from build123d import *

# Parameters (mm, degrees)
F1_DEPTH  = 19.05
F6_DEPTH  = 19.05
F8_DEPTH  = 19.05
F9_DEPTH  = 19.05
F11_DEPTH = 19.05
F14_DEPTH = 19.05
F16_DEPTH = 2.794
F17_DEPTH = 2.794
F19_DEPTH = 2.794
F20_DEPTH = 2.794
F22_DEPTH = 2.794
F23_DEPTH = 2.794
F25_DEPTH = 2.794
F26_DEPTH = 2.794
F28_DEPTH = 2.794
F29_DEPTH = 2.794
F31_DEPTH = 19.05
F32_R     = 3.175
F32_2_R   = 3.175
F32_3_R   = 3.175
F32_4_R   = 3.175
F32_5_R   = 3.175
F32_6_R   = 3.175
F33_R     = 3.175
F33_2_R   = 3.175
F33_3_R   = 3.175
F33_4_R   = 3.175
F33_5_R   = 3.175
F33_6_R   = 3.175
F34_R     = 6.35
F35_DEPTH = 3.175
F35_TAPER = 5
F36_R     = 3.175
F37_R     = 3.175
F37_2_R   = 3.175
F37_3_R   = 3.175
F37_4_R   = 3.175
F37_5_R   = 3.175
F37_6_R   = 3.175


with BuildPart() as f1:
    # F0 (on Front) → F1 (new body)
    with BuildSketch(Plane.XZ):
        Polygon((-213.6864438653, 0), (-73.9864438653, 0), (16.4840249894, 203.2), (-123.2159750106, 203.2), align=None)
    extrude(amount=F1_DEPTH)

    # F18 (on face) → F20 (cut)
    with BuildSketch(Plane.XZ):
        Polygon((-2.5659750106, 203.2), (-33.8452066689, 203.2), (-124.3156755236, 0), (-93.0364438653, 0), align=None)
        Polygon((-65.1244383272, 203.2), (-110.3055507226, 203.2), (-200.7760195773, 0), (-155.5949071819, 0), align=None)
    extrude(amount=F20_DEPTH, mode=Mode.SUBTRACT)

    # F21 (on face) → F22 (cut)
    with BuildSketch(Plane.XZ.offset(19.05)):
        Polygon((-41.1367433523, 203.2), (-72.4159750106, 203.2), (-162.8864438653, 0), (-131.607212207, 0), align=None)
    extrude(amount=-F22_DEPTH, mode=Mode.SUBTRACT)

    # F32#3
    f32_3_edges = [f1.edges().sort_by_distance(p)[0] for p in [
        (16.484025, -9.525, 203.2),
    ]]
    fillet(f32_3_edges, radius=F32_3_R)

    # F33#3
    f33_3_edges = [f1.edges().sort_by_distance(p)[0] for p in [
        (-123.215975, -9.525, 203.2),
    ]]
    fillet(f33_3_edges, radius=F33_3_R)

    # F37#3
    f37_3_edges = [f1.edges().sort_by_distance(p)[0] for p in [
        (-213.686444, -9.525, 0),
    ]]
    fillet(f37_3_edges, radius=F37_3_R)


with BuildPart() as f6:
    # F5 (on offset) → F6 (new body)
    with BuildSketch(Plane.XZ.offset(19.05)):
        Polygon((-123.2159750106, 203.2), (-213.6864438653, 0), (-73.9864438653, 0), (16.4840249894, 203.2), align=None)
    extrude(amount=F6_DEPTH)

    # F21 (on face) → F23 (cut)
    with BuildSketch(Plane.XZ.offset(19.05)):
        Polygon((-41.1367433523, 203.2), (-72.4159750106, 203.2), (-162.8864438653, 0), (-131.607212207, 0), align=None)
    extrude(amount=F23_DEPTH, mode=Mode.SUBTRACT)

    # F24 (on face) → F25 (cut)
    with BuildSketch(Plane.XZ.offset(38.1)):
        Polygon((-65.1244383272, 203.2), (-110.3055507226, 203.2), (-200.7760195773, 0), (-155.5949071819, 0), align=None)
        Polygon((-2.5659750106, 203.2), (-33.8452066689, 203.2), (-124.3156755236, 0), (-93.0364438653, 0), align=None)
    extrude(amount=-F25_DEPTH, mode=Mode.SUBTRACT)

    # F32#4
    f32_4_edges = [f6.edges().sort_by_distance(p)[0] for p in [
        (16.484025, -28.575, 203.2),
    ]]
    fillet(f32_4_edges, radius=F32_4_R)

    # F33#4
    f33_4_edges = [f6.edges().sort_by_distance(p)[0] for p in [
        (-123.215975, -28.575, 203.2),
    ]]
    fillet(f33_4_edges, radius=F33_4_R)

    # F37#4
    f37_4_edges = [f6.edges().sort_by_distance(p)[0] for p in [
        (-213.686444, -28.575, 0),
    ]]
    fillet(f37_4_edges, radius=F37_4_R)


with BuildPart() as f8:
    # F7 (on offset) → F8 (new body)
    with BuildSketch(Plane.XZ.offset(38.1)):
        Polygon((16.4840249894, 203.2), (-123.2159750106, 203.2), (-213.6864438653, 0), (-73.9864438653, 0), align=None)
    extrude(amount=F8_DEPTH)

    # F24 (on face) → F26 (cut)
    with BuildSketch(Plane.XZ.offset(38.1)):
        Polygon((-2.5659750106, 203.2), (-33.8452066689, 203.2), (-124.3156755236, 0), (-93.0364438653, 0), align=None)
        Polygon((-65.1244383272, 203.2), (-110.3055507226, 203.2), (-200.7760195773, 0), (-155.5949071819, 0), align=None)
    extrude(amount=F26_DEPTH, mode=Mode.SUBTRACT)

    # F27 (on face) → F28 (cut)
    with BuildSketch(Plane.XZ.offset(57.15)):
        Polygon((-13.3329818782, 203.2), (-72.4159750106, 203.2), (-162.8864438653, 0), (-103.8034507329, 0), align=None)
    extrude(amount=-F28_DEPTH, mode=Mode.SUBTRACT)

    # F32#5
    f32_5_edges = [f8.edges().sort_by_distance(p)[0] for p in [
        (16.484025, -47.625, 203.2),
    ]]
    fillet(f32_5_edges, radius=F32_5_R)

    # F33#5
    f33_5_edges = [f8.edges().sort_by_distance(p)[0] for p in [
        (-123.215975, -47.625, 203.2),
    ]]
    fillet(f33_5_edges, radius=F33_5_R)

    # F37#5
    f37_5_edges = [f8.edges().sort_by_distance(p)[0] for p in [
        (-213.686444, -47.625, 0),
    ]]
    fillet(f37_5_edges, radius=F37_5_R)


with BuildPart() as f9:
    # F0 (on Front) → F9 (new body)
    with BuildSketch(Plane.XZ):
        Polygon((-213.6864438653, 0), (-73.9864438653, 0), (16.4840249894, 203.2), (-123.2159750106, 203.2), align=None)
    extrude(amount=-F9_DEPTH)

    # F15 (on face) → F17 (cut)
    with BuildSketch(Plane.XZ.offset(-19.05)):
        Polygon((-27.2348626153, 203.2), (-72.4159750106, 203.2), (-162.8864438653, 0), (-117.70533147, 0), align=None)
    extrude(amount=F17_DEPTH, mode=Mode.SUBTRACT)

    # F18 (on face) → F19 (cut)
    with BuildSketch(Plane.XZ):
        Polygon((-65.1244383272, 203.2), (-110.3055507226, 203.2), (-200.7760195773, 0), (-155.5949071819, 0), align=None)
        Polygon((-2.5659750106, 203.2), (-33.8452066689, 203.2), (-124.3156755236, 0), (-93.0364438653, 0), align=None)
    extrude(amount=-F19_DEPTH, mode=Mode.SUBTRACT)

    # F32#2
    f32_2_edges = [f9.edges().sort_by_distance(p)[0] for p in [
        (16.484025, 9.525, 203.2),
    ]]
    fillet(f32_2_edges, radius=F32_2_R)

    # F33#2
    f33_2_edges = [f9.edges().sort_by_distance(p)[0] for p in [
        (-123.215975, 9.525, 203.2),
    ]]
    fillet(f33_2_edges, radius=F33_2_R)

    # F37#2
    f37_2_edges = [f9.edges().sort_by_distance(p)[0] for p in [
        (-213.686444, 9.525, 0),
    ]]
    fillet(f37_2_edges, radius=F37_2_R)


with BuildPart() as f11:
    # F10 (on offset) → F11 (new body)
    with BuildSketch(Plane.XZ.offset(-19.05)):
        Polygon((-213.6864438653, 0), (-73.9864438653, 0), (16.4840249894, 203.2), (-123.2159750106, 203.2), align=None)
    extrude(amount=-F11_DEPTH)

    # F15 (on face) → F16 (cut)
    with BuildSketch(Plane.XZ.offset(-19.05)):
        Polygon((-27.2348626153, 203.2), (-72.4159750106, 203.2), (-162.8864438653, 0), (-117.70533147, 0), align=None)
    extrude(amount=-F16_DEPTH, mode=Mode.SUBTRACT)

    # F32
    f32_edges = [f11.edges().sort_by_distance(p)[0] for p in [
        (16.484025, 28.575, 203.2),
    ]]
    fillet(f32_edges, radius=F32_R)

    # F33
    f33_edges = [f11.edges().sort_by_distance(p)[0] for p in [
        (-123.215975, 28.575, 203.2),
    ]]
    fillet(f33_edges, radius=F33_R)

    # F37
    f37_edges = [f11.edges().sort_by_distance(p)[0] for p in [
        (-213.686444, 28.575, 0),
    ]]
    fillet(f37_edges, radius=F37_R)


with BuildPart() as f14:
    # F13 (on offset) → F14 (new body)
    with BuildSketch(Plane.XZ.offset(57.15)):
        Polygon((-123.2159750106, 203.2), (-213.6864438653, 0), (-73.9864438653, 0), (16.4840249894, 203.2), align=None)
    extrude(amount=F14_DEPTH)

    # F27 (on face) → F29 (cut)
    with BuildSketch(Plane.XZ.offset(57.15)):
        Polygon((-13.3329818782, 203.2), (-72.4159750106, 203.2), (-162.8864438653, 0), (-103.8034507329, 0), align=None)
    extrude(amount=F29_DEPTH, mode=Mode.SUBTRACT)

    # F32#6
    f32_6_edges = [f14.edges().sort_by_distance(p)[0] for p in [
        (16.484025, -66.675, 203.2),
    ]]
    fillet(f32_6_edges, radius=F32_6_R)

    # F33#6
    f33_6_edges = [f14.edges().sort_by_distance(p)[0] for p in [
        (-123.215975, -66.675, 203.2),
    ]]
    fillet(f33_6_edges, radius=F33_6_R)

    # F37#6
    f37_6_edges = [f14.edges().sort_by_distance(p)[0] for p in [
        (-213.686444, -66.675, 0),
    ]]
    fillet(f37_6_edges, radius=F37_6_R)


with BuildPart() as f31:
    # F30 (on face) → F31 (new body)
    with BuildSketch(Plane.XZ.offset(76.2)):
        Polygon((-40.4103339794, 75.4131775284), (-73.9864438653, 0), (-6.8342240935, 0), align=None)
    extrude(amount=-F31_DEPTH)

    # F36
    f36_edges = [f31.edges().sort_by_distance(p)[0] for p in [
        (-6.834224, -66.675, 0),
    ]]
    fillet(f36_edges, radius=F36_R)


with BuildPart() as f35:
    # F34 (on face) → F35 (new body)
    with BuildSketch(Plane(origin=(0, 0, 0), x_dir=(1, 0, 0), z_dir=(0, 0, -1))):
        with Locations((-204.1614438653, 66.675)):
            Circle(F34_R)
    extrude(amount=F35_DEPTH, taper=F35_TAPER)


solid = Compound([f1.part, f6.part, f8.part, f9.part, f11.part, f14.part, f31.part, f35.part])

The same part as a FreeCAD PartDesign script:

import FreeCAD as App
import Part
import Sketcher
Q = App.Units.Quantity


def edges_at(feature, points):
    """Names of the edges that pass closest to the given points."""
    edges = feature.Shape.Edges
    near = lambda p: min(range(len(edges)), key=lambda i: edges[i].distToShape(Part.Vertex(*p))[0])
    return sorted({f"Edge{near(p) + 1}" for p in points})

doc = App.newDocument("Part")
body = doc.addObject("PartDesign::Body", "Body")

sketch1 = body.newObject("Sketcher::SketchObject", "Sketch")
sketch1.AttachmentSupport = (doc.getObject("XZ_Plane"), [""])
sketch1.MapMode = "FlatFace"
sketch1.addGeometry(Part.LineSegment(App.Vector(-214, 0, 0), App.Vector(-74, 0, 0)), False)
sketch1.addGeometry(Part.LineSegment(App.Vector(-74, 0, 0), App.Vector(16, 203, 0)), False)
sketch1.addGeometry(Part.LineSegment(App.Vector(16, 203, 0), App.Vector(-123, 203, 0)), False)
sketch1.addGeometry(Part.LineSegment(App.Vector(-123, 203, 0), App.Vector(-214, 0, 0)), False)
sketch1.addConstraint(Sketcher.Constraint("Coincident", 0, 2, 1, 1))
sketch1.addConstraint(Sketcher.Constraint("Coincident", 1, 2, 2, 1))
sketch1.addConstraint(Sketcher.Constraint("Coincident", 2, 2, 3, 1))
sketch1.addConstraint(Sketcher.Constraint("Coincident", 3, 2, 0, 1))
sketch1.addConstraint(Sketcher.Constraint("Horizontal", 0))
sketch1.addConstraint(Sketcher.Constraint("Horizontal", 2))
sketch1.addConstraint(Sketcher.Constraint("PointOnObject", 0, 2, -1))
sketch1.addConstraint(Sketcher.Constraint("Parallel", 1, 3))
sketch1.addConstraint(Sketcher.Constraint("DistanceX", 0, 1, 0, 2, Q("5.5 in")))
sketch1.addConstraint(Sketcher.Constraint("DistanceY", -1, 1, 1, 2, Q("8 in")))
sketch1.addConstraint(Sketcher.Constraint("Angle", 1, Q("66 deg")))
sketch1.addConstraint(Sketcher.Constraint("DistanceX", 0, 2, -1, 1, Q("73.986444 mm")))
pad1 = body.newObject("PartDesign::Pad", "Pad")
pad1.Profile = sketch1
pad1.Length = Q("0.75 in")

sketch2 = body.newObject("Sketcher::SketchObject", "Sketch001")
sketch2.AttachmentSupport = (doc.getObject("XZ_Plane"), [""])
sketch2.MapMode = "FlatFace"
sketch2.addGeometry(Part.LineSegment(App.Vector(-3, 203, 0), App.Vector(-34, 203, 0)), False)
sketch2.addGeometry(Part.LineSegment(App.Vector(-34, 203, 0), App.Vector(-124, 0, 0)), False)
sketch2.addGeometry(Part.LineSegment(App.Vector(-124, 0, 0), App.Vector(-93, 0, 0)), False)
sketch2.addGeometry(Part.LineSegment(App.Vector(-93, 0, 0), App.Vector(-3, 203, 0)), False)
sketch2.addGeometry(Part.LineSegment(App.Vector(-65, 203, 0), App.Vector(-110, 203, 0)), False)
sketch2.addGeometry(Part.LineSegment(App.Vector(-110, 203, 0), App.Vector(-201, 0, 0)), False)
sketch2.addGeometry(Part.LineSegment(App.Vector(-201, 0, 0), App.Vector(-156, 0, 0)), False)
sketch2.addGeometry(Part.LineSegment(App.Vector(-156, 0, 0), App.Vector(-65, 203, 0)), False)
sketch2.addConstraint(Sketcher.Constraint("Coincident", 0, 2, 1, 1))
sketch2.addConstraint(Sketcher.Constraint("Coincident", 1, 2, 2, 1))
sketch2.addConstraint(Sketcher.Constraint("Coincident", 2, 2, 3, 1))
sketch2.addConstraint(Sketcher.Constraint("Coincident", 3, 2, 0, 1))
sketch2.addConstraint(Sketcher.Constraint("Coincident", 4, 2, 5, 1))
sketch2.addConstraint(Sketcher.Constraint("Coincident", 5, 2, 6, 1))
sketch2.addConstraint(Sketcher.Constraint("Coincident", 6, 2, 7, 1))
sketch2.addConstraint(Sketcher.Constraint("Coincident", 7, 2, 4, 1))
sketch2.addConstraint(Sketcher.Constraint("Horizontal", 0))
sketch2.addConstraint(Sketcher.Constraint("Horizontal", 2))
sketch2.addConstraint(Sketcher.Constraint("Horizontal", 4))
sketch2.addConstraint(Sketcher.Constraint("Horizontal", 6))
sketch2.addConstraint(Sketcher.Constraint("PointOnObject", 1, 2, -1))
sketch2.addConstraint(Sketcher.Constraint("PointOnObject", 5, 2, -1))
sketch2.addConstraint(Sketcher.Constraint("Parallel", 1, 3))
sketch2.addConstraint(Sketcher.Constraint("Parallel", 3, 5))
sketch2.addConstraint(Sketcher.Constraint("Parallel", 5, 7))
sketch2.addConstraint(Sketcher.Constraint("Horizontal", 3, 2, 4, 2))
sketch2.addConstraint(Sketcher.Constraint("DistanceY", -1, 1, 0, 2, Q("8 in")))
sketch2.addConstraint(Sketcher.Constraint("Angle", 1, Q("-114 deg")))
sketch2.addConstraint(Sketcher.Constraint("DistanceX", 0, 2, 0, 1, Q("31.279232 mm")))
sketch2.addConstraint(Sketcher.Constraint("DistanceX", 6, 2, 0, 2, Q("121.749701 mm")))
sketch2.addConstraint(Sketcher.Constraint("DistanceX", 4, 2, 4, 1, Q("45.181112 mm")))
sketch2.addConstraint(Sketcher.Constraint("DistanceX", 4, 2, -1, 1, Q("110.305551 mm")))
pocket1 = body.newObject("PartDesign::Pocket", "Pocket")
pocket1.Profile = sketch2
pocket1.Length = Q("0.11 in")
pocket1.Reversed = True

sketch3 = body.newObject("Sketcher::SketchObject", "Sketch002")
sketch3.AttachmentSupport = (doc.getObject("XZ_Plane"), [""])
sketch3.MapMode = "FlatFace"
sketch3.AttachmentOffset = App.Placement(App.Vector(0, 0, 0.75 * 25.4), App.Rotation())
sketch3.addGeometry(Part.LineSegment(App.Vector(-41, 203, 0), App.Vector(-72, 203, 0)), False)
sketch3.addGeometry(Part.LineSegment(App.Vector(-72, 203, 0), App.Vector(-163, 0, 0)), False)
sketch3.addGeometry(Part.LineSegment(App.Vector(-163, 0, 0), App.Vector(-132, 0, 0)), False)
sketch3.addGeometry(Part.LineSegment(App.Vector(-132, 0, 0), App.Vector(-41, 203, 0)), False)
sketch3.addConstraint(Sketcher.Constraint("Coincident", 0, 2, 1, 1))
sketch3.addConstraint(Sketcher.Constraint("Coincident", 1, 2, 2, 1))
sketch3.addConstraint(Sketcher.Constraint("Coincident", 2, 2, 3, 1))
sketch3.addConstraint(Sketcher.Constraint("Coincident", 3, 2, 0, 1))
sketch3.addConstraint(Sketcher.Constraint("Horizontal", 0))
sketch3.addConstraint(Sketcher.Constraint("Horizontal", 2))
sketch3.addConstraint(Sketcher.Constraint("PointOnObject", 1, 2, -1))
sketch3.addConstraint(Sketcher.Constraint("Parallel", 1, 3))
sketch3.addConstraint(Sketcher.Constraint("DistanceY", -1, 1, 0, 2, Q("8 in")))
sketch3.addConstraint(Sketcher.Constraint("Angle", 1, Q("-114 deg")))
sketch3.addConstraint(Sketcher.Constraint("DistanceX", 0, 2, 0, 1, Q("31.279232 mm")))
sketch3.addConstraint(Sketcher.Constraint("DistanceX", 0, 2, -1, 1, Q("72.415975 mm")))
pocket2 = body.newObject("PartDesign::Pocket", "Pocket001")
pocket2.Profile = sketch3
pocket2.Length = Q("0.11 in")
doc.recompute()

fillet = body.newObject("PartDesign::Fillet", "Fillet")
fillet.Base = (pocket2, edges_at(pocket2, [(16.484, -9.525, 203.2)]))
fillet.Radius = Q("0.125 in")
doc.recompute()

fillet2 = body.newObject("PartDesign::Fillet", "Fillet001")
fillet2.Base = (fillet, edges_at(fillet, [(-123.216, -9.525, 203.2)]))
fillet2.Radius = Q("0.125 in")
doc.recompute()

fillet3 = body.newObject("PartDesign::Fillet", "Fillet002")
fillet3.Base = (fillet2, edges_at(fillet2, [(-213.686, -9.525, 0)]))
fillet3.Radius = Q("0.125 in")
body2 = doc.addObject("PartDesign::Body", "Body001")

sketch4 = body2.newObject("Sketcher::SketchObject", "Sketch003")
sketch4.AttachmentSupport = (doc.getObject("XZ_Plane001"), [""])
sketch4.MapMode = "FlatFace"
sketch4.AttachmentOffset = App.Placement(App.Vector(0, 0, 0.75 * 25.4), App.Rotation())
sketch4.addGeometry(Part.LineSegment(App.Vector(-123, 203, 0), App.Vector(-214, 0, 0)), False)
sketch4.addGeometry(Part.LineSegment(App.Vector(-214, 0, 0), App.Vector(-74, 0, 0)), False)
sketch4.addGeometry(Part.LineSegment(App.Vector(-74, 0, 0), App.Vector(16, 203, 0)), False)
sketch4.addGeometry(Part.LineSegment(App.Vector(16, 203, 0), App.Vector(-123, 203, 0)), False)
sketch4.addConstraint(Sketcher.Constraint("Coincident", 0, 2, 1, 1))
sketch4.addConstraint(Sketcher.Constraint("Coincident", 1, 2, 2, 1))
sketch4.addConstraint(Sketcher.Constraint("Coincident", 2, 2, 3, 1))
sketch4.addConstraint(Sketcher.Constraint("Coincident", 3, 2, 0, 1))
sketch4.addConstraint(Sketcher.Constraint("Horizontal", 1))
sketch4.addConstraint(Sketcher.Constraint("Horizontal", 3))
sketch4.addConstraint(Sketcher.Constraint("PointOnObject", 0, 2, -1))
sketch4.addConstraint(Sketcher.Constraint("Parallel", 0, 2))
sketch4.addConstraint(Sketcher.Constraint("DistanceX", 1, 1, 1, 2, Q("5.5 in")))
sketch4.addConstraint(Sketcher.Constraint("DistanceY", -1, 1, 2, 2, Q("8 in")))
sketch4.addConstraint(Sketcher.Constraint("Angle", 0, Q("-114 deg")))
sketch4.addConstraint(Sketcher.Constraint("DistanceX", 0, 2, -1, 1, Q("213.686444 mm")))
pad2 = body2.newObject("PartDesign::Pad", "Pad001")
pad2.Profile = sketch4
pad2.Length = Q("0.75 in")

sketch5 = body2.newObject("Sketcher::SketchObject", "Sketch004")
sketch5.AttachmentSupport = (doc.getObject("XZ_Plane001"), [""])
sketch5.MapMode = "FlatFace"
sketch5.AttachmentOffset = App.Placement(App.Vector(0, 0, 0.75 * 25.4), App.Rotation())
sketch5.addGeometry(Part.LineSegment(App.Vector(-41, 203, 0), App.Vector(-72, 203, 0)), False)
sketch5.addGeometry(Part.LineSegment(App.Vector(-72, 203, 0), App.Vector(-163, 0, 0)), False)
sketch5.addGeometry(Part.LineSegment(App.Vector(-163, 0, 0), App.Vector(-132, 0, 0)), False)
sketch5.addGeometry(Part.LineSegment(App.Vector(-132, 0, 0), App.Vector(-41, 203, 0)), False)
sketch5.addConstraint(Sketcher.Constraint("Coincident", 0, 2, 1, 1))
sketch5.addConstraint(Sketcher.Constraint("Coincident", 1, 2, 2, 1))
sketch5.addConstraint(Sketcher.Constraint("Coincident", 2, 2, 3, 1))
sketch5.addConstraint(Sketcher.Constraint("Coincident", 3, 2, 0, 1))
sketch5.addConstraint(Sketcher.Constraint("Horizontal", 0))
sketch5.addConstraint(Sketcher.Constraint("Horizontal", 2))
sketch5.addConstraint(Sketcher.Constraint("PointOnObject", 1, 2, -1))
sketch5.addConstraint(Sketcher.Constraint("Parallel", 1, 3))
sketch5.addConstraint(Sketcher.Constraint("DistanceY", -1, 1, 0, 2, Q("8 in")))
sketch5.addConstraint(Sketcher.Constraint("Angle", 1, Q("-114 deg")))
sketch5.addConstraint(Sketcher.Constraint("DistanceX", 0, 2, 0, 1, Q("31.279232 mm")))
sketch5.addConstraint(Sketcher.Constraint("DistanceX", 0, 2, -1, 1, Q("72.415975 mm")))
pocket3 = body2.newObject("PartDesign::Pocket", "Pocket002")
pocket3.Profile = sketch5
pocket3.Length = Q("0.11 in")
pocket3.Reversed = True

sketch6 = body2.newObject("Sketcher::SketchObject", "Sketch005")
sketch6.AttachmentSupport = (doc.getObject("XZ_Plane001"), [""])
sketch6.MapMode = "FlatFace"
sketch6.AttachmentOffset = App.Placement(App.Vector(0, 0, 1.5 * 25.4), App.Rotation())
sketch6.addGeometry(Part.LineSegment(App.Vector(-65, 203, 0), App.Vector(-110, 203, 0)), False)
sketch6.addGeometry(Part.LineSegment(App.Vector(-110, 203, 0), App.Vector(-201, 0, 0)), False)
sketch6.addGeometry(Part.LineSegment(App.Vector(-201, 0, 0), App.Vector(-156, 0, 0)), False)
sketch6.addGeometry(Part.LineSegment(App.Vector(-156, 0, 0), App.Vector(-65, 203, 0)), False)
sketch6.addGeometry(Part.LineSegment(App.Vector(-3, 203, 0), App.Vector(-34, 203, 0)), False)
sketch6.addGeometry(Part.LineSegment(App.Vector(-34, 203, 0), App.Vector(-124, 0, 0)), False)
sketch6.addGeometry(Part.LineSegment(App.Vector(-124, 0, 0), App.Vector(-93, 0, 0)), False)
sketch6.addGeometry(Part.LineSegment(App.Vector(-93, 0, 0), App.Vector(-3, 203, 0)), False)
sketch6.addConstraint(Sketcher.Constraint("Coincident", 0, 2, 1, 1))
sketch6.addConstraint(Sketcher.Constraint("Coincident", 1, 2, 2, 1))
sketch6.addConstraint(Sketcher.Constraint("Coincident", 2, 2, 3, 1))
sketch6.addConstraint(Sketcher.Constraint("Coincident", 3, 2, 0, 1))
sketch6.addConstraint(Sketcher.Constraint("Coincident", 4, 2, 5, 1))
sketch6.addConstraint(Sketcher.Constraint("Coincident", 5, 2, 6, 1))
sketch6.addConstraint(Sketcher.Constraint("Coincident", 6, 2, 7, 1))
sketch6.addConstraint(Sketcher.Constraint("Coincident", 7, 2, 4, 1))
sketch6.addConstraint(Sketcher.Constraint("Horizontal", 0))
sketch6.addConstraint(Sketcher.Constraint("Horizontal", 2))
sketch6.addConstraint(Sketcher.Constraint("Horizontal", 4))
sketch6.addConstraint(Sketcher.Constraint("Horizontal", 6))
sketch6.addConstraint(Sketcher.Constraint("PointOnObject", 1, 2, -1))
sketch6.addConstraint(Sketcher.Constraint("PointOnObject", 5, 2, -1))
sketch6.addConstraint(Sketcher.Constraint("Parallel", 1, 3))
sketch6.addConstraint(Sketcher.Constraint("Parallel", 3, 5))
sketch6.addConstraint(Sketcher.Constraint("Parallel", 5, 7))
sketch6.addConstraint(Sketcher.Constraint("Horizontal", 3, 2, 4, 2))
sketch6.addConstraint(Sketcher.Constraint("DistanceY", -1, 1, 0, 2, Q("8 in")))
sketch6.addConstraint(Sketcher.Constraint("Angle", 1, Q("-114 deg")))
sketch6.addConstraint(Sketcher.Constraint("DistanceX", 4, 2, 4, 1, Q("31.279232 mm")))
sketch6.addConstraint(Sketcher.Constraint("DistanceX", 2, 2, 4, 2, Q("121.749701 mm")))
sketch6.addConstraint(Sketcher.Constraint("DistanceX", 0, 2, 0, 1, Q("45.181112 mm")))
sketch6.addConstraint(Sketcher.Constraint("DistanceX", 0, 2, -1, 1, Q("110.305551 mm")))
pocket4 = body2.newObject("PartDesign::Pocket", "Pocket003")
pocket4.Profile = sketch6
pocket4.Length = Q("0.11 in")
doc.recompute()

fillet4 = body2.newObject("PartDesign::Fillet", "Fillet003")
fillet4.Base = (pocket4, edges_at(pocket4, [(16.484, -28.575, 203.2)]))
fillet4.Radius = Q("0.125 in")
doc.recompute()

fillet5 = body2.newObject("PartDesign::Fillet", "Fillet004")
fillet5.Base = (fillet4, edges_at(fillet4, [(-123.216, -28.575, 203.2)]))
fillet5.Radius = Q("0.125 in")
doc.recompute()

fillet6 = body2.newObject("PartDesign::Fillet", "Fillet005")
fillet6.Base = (fillet5, edges_at(fillet5, [(-213.686, -28.575, 0)]))
fillet6.Radius = Q("0.125 in")
body3 = doc.addObject("PartDesign::Body", "Body002")

sketch7 = body3.newObject("Sketcher::SketchObject", "Sketch006")
sketch7.AttachmentSupport = (doc.getObject("XZ_Plane002"), [""])
sketch7.MapMode = "FlatFace"
sketch7.AttachmentOffset = App.Placement(App.Vector(0, 0, 1.5 * 25.4), App.Rotation())
sketch7.addGeometry(Part.LineSegment(App.Vector(16, 203, 0), App.Vector(-123, 203, 0)), False)
sketch7.addGeometry(Part.LineSegment(App.Vector(-123, 203, 0), App.Vector(-214, 0, 0)), False)
sketch7.addGeometry(Part.LineSegment(App.Vector(-214, 0, 0), App.Vector(-74, 0, 0)), False)
sketch7.addGeometry(Part.LineSegment(App.Vector(-74, 0, 0), App.Vector(16, 203, 0)), False)
sketch7.addConstraint(Sketcher.Constraint("Coincident", 0, 2, 1, 1))
sketch7.addConstraint(Sketcher.Constraint("Coincident", 1, 2, 2, 1))
sketch7.addConstraint(Sketcher.Constraint("Coincident", 2, 2, 3, 1))
sketch7.addConstraint(Sketcher.Constraint("Coincident", 3, 2, 0, 1))
sketch7.addConstraint(Sketcher.Constraint("Horizontal", 0))
sketch7.addConstraint(Sketcher.Constraint("Horizontal", 2))
sketch7.addConstraint(Sketcher.Constraint("PointOnObject", 1, 2, -1))
sketch7.addConstraint(Sketcher.Constraint("Parallel", 1, 3))
sketch7.addConstraint(Sketcher.Constraint("DistanceX", 0, 2, 0, 1, Q("5.5 in")))
sketch7.addConstraint(Sketcher.Constraint("DistanceY", -1, 1, 0, 2, Q("8 in")))
sketch7.addConstraint(Sketcher.Constraint("Angle", 1, Q("-114 deg")))
sketch7.addConstraint(Sketcher.Constraint("DistanceX", 0, 2, -1, 1, Q("123.215975 mm")))
pad3 = body3.newObject("PartDesign::Pad", "Pad002")
pad3.Profile = sketch7
pad3.Length = Q("0.75 in")

sketch8 = body3.newObject("Sketcher::SketchObject", "Sketch007")
sketch8.AttachmentSupport = (doc.getObject("XZ_Plane002"), [""])
sketch8.MapMode = "FlatFace"
sketch8.AttachmentOffset = App.Placement(App.Vector(0, 0, 1.5 * 25.4), App.Rotation())
sketch8.addGeometry(Part.LineSegment(App.Vector(-3, 203, 0), App.Vector(-34, 203, 0)), False)
sketch8.addGeometry(Part.LineSegment(App.Vector(-34, 203, 0), App.Vector(-124, 0, 0)), False)
sketch8.addGeometry(Part.LineSegment(App.Vector(-124, 0, 0), App.Vector(-93, 0, 0)), False)
sketch8.addGeometry(Part.LineSegment(App.Vector(-93, 0, 0), App.Vector(-3, 203, 0)), False)
sketch8.addGeometry(Part.LineSegment(App.Vector(-65, 203, 0), App.Vector(-110, 203, 0)), False)
sketch8.addGeometry(Part.LineSegment(App.Vector(-110, 203, 0), App.Vector(-201, 0, 0)), False)
sketch8.addGeometry(Part.LineSegment(App.Vector(-201, 0, 0), App.Vector(-156, 0, 0)), False)
sketch8.addGeometry(Part.LineSegment(App.Vector(-156, 0, 0), App.Vector(-65, 203, 0)), False)
sketch8.addConstraint(Sketcher.Constraint("Coincident", 0, 2, 1, 1))
sketch8.addConstraint(Sketcher.Constraint("Coincident", 1, 2, 2, 1))
sketch8.addConstraint(Sketcher.Constraint("Coincident", 2, 2, 3, 1))
sketch8.addConstraint(Sketcher.Constraint("Coincident", 3, 2, 0, 1))
sketch8.addConstraint(Sketcher.Constraint("Coincident", 4, 2, 5, 1))
sketch8.addConstraint(Sketcher.Constraint("Coincident", 5, 2, 6, 1))
sketch8.addConstraint(Sketcher.Constraint("Coincident", 6, 2, 7, 1))
sketch8.addConstraint(Sketcher.Constraint("Coincident", 7, 2, 4, 1))
sketch8.addConstraint(Sketcher.Constraint("Horizontal", 0))
sketch8.addConstraint(Sketcher.Constraint("Horizontal", 2))
sketch8.addConstraint(Sketcher.Constraint("Horizontal", 4))
sketch8.addConstraint(Sketcher.Constraint("Horizontal", 6))
sketch8.addConstraint(Sketcher.Constraint("PointOnObject", 1, 2, -1))
sketch8.addConstraint(Sketcher.Constraint("PointOnObject", 5, 2, -1))
sketch8.addConstraint(Sketcher.Constraint("Parallel", 1, 3))
sketch8.addConstraint(Sketcher.Constraint("Parallel", 3, 5))
sketch8.addConstraint(Sketcher.Constraint("Parallel", 5, 7))
sketch8.addConstraint(Sketcher.Constraint("Horizontal", 3, 2, 4, 2))
sketch8.addConstraint(Sketcher.Constraint("DistanceY", -1, 1, 0, 2, Q("8 in")))
sketch8.addConstraint(Sketcher.Constraint("Angle", 1, Q("-114 deg")))
sketch8.addConstraint(Sketcher.Constraint("DistanceX", 0, 2, 0, 1, Q("31.279232 mm")))
sketch8.addConstraint(Sketcher.Constraint("DistanceX", 6, 2, 0, 2, Q("121.749701 mm")))
sketch8.addConstraint(Sketcher.Constraint("DistanceX", 4, 2, 4, 1, Q("45.181112 mm")))
sketch8.addConstraint(Sketcher.Constraint("DistanceX", 4, 2, -1, 1, Q("110.305551 mm")))
pocket5 = body3.newObject("PartDesign::Pocket", "Pocket004")
pocket5.Profile = sketch8
pocket5.Length = Q("0.11 in")
pocket5.Reversed = True

sketch9 = body3.newObject("Sketcher::SketchObject", "Sketch008")
sketch9.AttachmentSupport = (doc.getObject("XZ_Plane002"), [""])
sketch9.MapMode = "FlatFace"
sketch9.AttachmentOffset = App.Placement(App.Vector(0, 0, 2.25 * 25.4), App.Rotation())
sketch9.addGeometry(Part.LineSegment(App.Vector(-13, 203, 0), App.Vector(-72, 203, 0)), False)
sketch9.addGeometry(Part.LineSegment(App.Vector(-72, 203, 0), App.Vector(-163, 0, 0)), False)
sketch9.addGeometry(Part.LineSegment(App.Vector(-163, 0, 0), App.Vector(-104, 0, 0)), False)
sketch9.addGeometry(Part.LineSegment(App.Vector(-104, 0, 0), App.Vector(-13, 203, 0)), False)
sketch9.addConstraint(Sketcher.Constraint("Coincident", 0, 2, 1, 1))
sketch9.addConstraint(Sketcher.Constraint("Coincident", 1, 2, 2, 1))
sketch9.addConstraint(Sketcher.Constraint("Coincident", 2, 2, 3, 1))
sketch9.addConstraint(Sketcher.Constraint("Coincident", 3, 2, 0, 1))
sketch9.addConstraint(Sketcher.Constraint("Horizontal", 0))
sketch9.addConstraint(Sketcher.Constraint("Horizontal", 2))
sketch9.addConstraint(Sketcher.Constraint("PointOnObject", 1, 2, -1))
sketch9.addConstraint(Sketcher.Constraint("Parallel", 1, 3))
sketch9.addConstraint(Sketcher.Constraint("DistanceY", -1, 1, 0, 2, Q("8 in")))
sketch9.addConstraint(Sketcher.Constraint("Angle", 1, Q("-114 deg")))
sketch9.addConstraint(Sketcher.Constraint("DistanceX", 0, 2, 0, 1, Q("59.082993 mm")))
sketch9.addConstraint(Sketcher.Constraint("DistanceX", 2, 2, -1, 1, Q("103.803451 mm")))
pocket6 = body3.newObject("PartDesign::Pocket", "Pocket005")
pocket6.Profile = sketch9
pocket6.Length = Q("0.11 in")
doc.recompute()

fillet7 = body3.newObject("PartDesign::Fillet", "Fillet006")
fillet7.Base = (pocket6, edges_at(pocket6, [(16.484, -47.625, 203.2)]))
fillet7.Radius = Q("0.125 in")
doc.recompute()

fillet8 = body3.newObject("PartDesign::Fillet", "Fillet007")
fillet8.Base = (fillet7, edges_at(fillet7, [(-123.216, -47.625, 203.2)]))
fillet8.Radius = Q("0.125 in")
doc.recompute()

fillet9 = body3.newObject("PartDesign::Fillet", "Fillet008")
fillet9.Base = (fillet8, edges_at(fillet8, [(-213.686, -47.625, 0)]))
fillet9.Radius = Q("0.125 in")
body4 = doc.addObject("PartDesign::Body", "Body003")

sketch10 = body4.newObject("Sketcher::SketchObject", "Sketch009")
sketch10.AttachmentSupport = (doc.getObject("XZ_Plane003"), [""])
sketch10.MapMode = "FlatFace"
sketch10.addGeometry(Part.LineSegment(App.Vector(-214, 0, 0), App.Vector(-74, 0, 0)), False)
sketch10.addGeometry(Part.LineSegment(App.Vector(-74, 0, 0), App.Vector(16, 203, 0)), False)
sketch10.addGeometry(Part.LineSegment(App.Vector(16, 203, 0), App.Vector(-123, 203, 0)), False)
sketch10.addGeometry(Part.LineSegment(App.Vector(-123, 203, 0), App.Vector(-214, 0, 0)), False)
sketch10.addConstraint(Sketcher.Constraint("Coincident", 0, 2, 1, 1))
sketch10.addConstraint(Sketcher.Constraint("Coincident", 1, 2, 2, 1))
sketch10.addConstraint(Sketcher.Constraint("Coincident", 2, 2, 3, 1))
sketch10.addConstraint(Sketcher.Constraint("Coincident", 3, 2, 0, 1))
sketch10.addConstraint(Sketcher.Constraint("Horizontal", 0))
sketch10.addConstraint(Sketcher.Constraint("Horizontal", 2))
sketch10.addConstraint(Sketcher.Constraint("PointOnObject", 0, 2, -1))
sketch10.addConstraint(Sketcher.Constraint("Parallel", 1, 3))
sketch10.addConstraint(Sketcher.Constraint("DistanceX", 0, 1, 0, 2, Q("5.5 in")))
sketch10.addConstraint(Sketcher.Constraint("DistanceY", -1, 1, 1, 2, Q("8 in")))
sketch10.addConstraint(Sketcher.Constraint("Angle", 1, Q("66 deg")))
sketch10.addConstraint(Sketcher.Constraint("DistanceX", 0, 2, -1, 1, Q("73.986444 mm")))
pad4 = body4.newObject("PartDesign::Pad", "Pad003")
pad4.Profile = sketch10
pad4.Length = Q("0.75 in")
pad4.Reversed = True

sketch11 = body4.newObject("Sketcher::SketchObject", "Sketch010")
sketch11.AttachmentSupport = (doc.getObject("XZ_Plane003"), [""])
sketch11.MapMode = "FlatFace"
sketch11.AttachmentOffset = App.Placement(App.Vector(0, 0, -0.75 * 25.4), App.Rotation())
sketch11.addGeometry(Part.LineSegment(App.Vector(-27, 203, 0), App.Vector(-72, 203, 0)), False)
sketch11.addGeometry(Part.LineSegment(App.Vector(-72, 203, 0), App.Vector(-163, 0, 0)), False)
sketch11.addGeometry(Part.LineSegment(App.Vector(-163, 0, 0), App.Vector(-118, 0, 0)), False)
sketch11.addGeometry(Part.LineSegment(App.Vector(-118, 0, 0), App.Vector(-27, 203, 0)), False)
sketch11.addConstraint(Sketcher.Constraint("Coincident", 0, 2, 1, 1))
sketch11.addConstraint(Sketcher.Constraint("Coincident", 1, 2, 2, 1))
sketch11.addConstraint(Sketcher.Constraint("Coincident", 2, 2, 3, 1))
sketch11.addConstraint(Sketcher.Constraint("Coincident", 3, 2, 0, 1))
sketch11.addConstraint(Sketcher.Constraint("Horizontal", 0))
sketch11.addConstraint(Sketcher.Constraint("Horizontal", 2))
sketch11.addConstraint(Sketcher.Constraint("PointOnObject", 1, 2, -1))
sketch11.addConstraint(Sketcher.Constraint("Parallel", 1, 3))
sketch11.addConstraint(Sketcher.Constraint("DistanceY", -1, 1, 0, 2, Q("8 in")))
sketch11.addConstraint(Sketcher.Constraint("Angle", 1, Q("-114 deg")))
sketch11.addConstraint(Sketcher.Constraint("DistanceX", 0, 2, 0, 1, Q("45.181112 mm")))
sketch11.addConstraint(Sketcher.Constraint("DistanceX", 2, 2, -1, 1, Q("117.705331 mm")))
pocket7 = body4.newObject("PartDesign::Pocket", "Pocket006")
pocket7.Profile = sketch11
pocket7.Length = Q("0.11 in")
pocket7.Reversed = True

sketch12 = body4.newObject("Sketcher::SketchObject", "Sketch011")
sketch12.AttachmentSupport = (doc.getObject("XZ_Plane003"), [""])
sketch12.MapMode = "FlatFace"
sketch12.addGeometry(Part.LineSegment(App.Vector(-65, 203, 0), App.Vector(-110, 203, 0)), False)
sketch12.addGeometry(Part.LineSegment(App.Vector(-110, 203, 0), App.Vector(-201, 0, 0)), False)
sketch12.addGeometry(Part.LineSegment(App.Vector(-201, 0, 0), App.Vector(-156, 0, 0)), False)
sketch12.addGeometry(Part.LineSegment(App.Vector(-156, 0, 0), App.Vector(-65, 203, 0)), False)
sketch12.addGeometry(Part.LineSegment(App.Vector(-3, 203, 0), App.Vector(-34, 203, 0)), False)
sketch12.addGeometry(Part.LineSegment(App.Vector(-34, 203, 0), App.Vector(-124, 0, 0)), False)
sketch12.addGeometry(Part.LineSegment(App.Vector(-124, 0, 0), App.Vector(-93, 0, 0)), False)
sketch12.addGeometry(Part.LineSegment(App.Vector(-93, 0, 0), App.Vector(-3, 203, 0)), False)
sketch12.addConstraint(Sketcher.Constraint("Coincident", 0, 2, 1, 1))
sketch12.addConstraint(Sketcher.Constraint("Coincident", 1, 2, 2, 1))
sketch12.addConstraint(Sketcher.Constraint("Coincident", 2, 2, 3, 1))
sketch12.addConstraint(Sketcher.Constraint("Coincident", 3, 2, 0, 1))
sketch12.addConstraint(Sketcher.Constraint("Coincident", 4, 2, 5, 1))
sketch12.addConstraint(Sketcher.Constraint("Coincident", 5, 2, 6, 1))
sketch12.addConstraint(Sketcher.Constraint("Coincident", 6, 2, 7, 1))
sketch12.addConstraint(Sketcher.Constraint("Coincident", 7, 2, 4, 1))
sketch12.addConstraint(Sketcher.Constraint("Horizontal", 0))
sketch12.addConstraint(Sketcher.Constraint("Horizontal", 2))
sketch12.addConstraint(Sketcher.Constraint("Horizontal", 4))
sketch12.addConstraint(Sketcher.Constraint("Horizontal", 6))
sketch12.addConstraint(Sketcher.Constraint("PointOnObject", 1, 2, -1))
sketch12.addConstraint(Sketcher.Constraint("PointOnObject", 5, 2, -1))
sketch12.addConstraint(Sketcher.Constraint("Parallel", 1, 3))
sketch12.addConstraint(Sketcher.Constraint("Parallel", 3, 5))
sketch12.addConstraint(Sketcher.Constraint("Parallel", 5, 7))
sketch12.addConstraint(Sketcher.Constraint("Horizontal", 3, 2, 4, 2))
sketch12.addConstraint(Sketcher.Constraint("DistanceY", -1, 1, 0, 2, Q("8 in")))
sketch12.addConstraint(Sketcher.Constraint("Angle", 1, Q("-114 deg")))
sketch12.addConstraint(Sketcher.Constraint("DistanceX", 4, 2, 4, 1, Q("31.279232 mm")))
sketch12.addConstraint(Sketcher.Constraint("DistanceX", 2, 2, 4, 2, Q("121.749701 mm")))
sketch12.addConstraint(Sketcher.Constraint("DistanceX", 0, 2, 0, 1, Q("45.181112 mm")))
sketch12.addConstraint(Sketcher.Constraint("DistanceX", 0, 2, -1, 1, Q("110.305551 mm")))
pocket8 = body4.newObject("PartDesign::Pocket", "Pocket007")
pocket8.Profile = sketch12
pocket8.Length = Q("0.11 in")
doc.recompute()

fillet10 = body4.newObject("PartDesign::Fillet", "Fillet009")
fillet10.Base = (pocket8, edges_at(pocket8, [(16.484, 9.525, 203.2)]))
fillet10.Radius = Q("0.125 in")
doc.recompute()

fillet11 = body4.newObject("PartDesign::Fillet", "Fillet010")
fillet11.Base = (fillet10, edges_at(fillet10, [(-123.216, 9.525, 203.2)]))
fillet11.Radius = Q("0.125 in")
doc.recompute()

fillet12 = body4.newObject("PartDesign::Fillet", "Fillet011")
fillet12.Base = (fillet11, edges_at(fillet11, [(-213.686, 9.525, 0)]))
fillet12.Radius = Q("0.125 in")
body5 = doc.addObject("PartDesign::Body", "Body004")

sketch13 = body5.newObject("Sketcher::SketchObject", "Sketch012")
sketch13.AttachmentSupport = (doc.getObject("XZ_Plane004"), [""])
sketch13.MapMode = "FlatFace"
sketch13.AttachmentOffset = App.Placement(App.Vector(0, 0, -0.75 * 25.4), App.Rotation())
sketch13.addGeometry(Part.LineSegment(App.Vector(-214, 0, 0), App.Vector(-74, 0, 0)), False)
sketch13.addGeometry(Part.LineSegment(App.Vector(-74, 0, 0), App.Vector(16, 203, 0)), False)
sketch13.addGeometry(Part.LineSegment(App.Vector(16, 203, 0), App.Vector(-123, 203, 0)), False)
sketch13.addGeometry(Part.LineSegment(App.Vector(-123, 203, 0), App.Vector(-214, 0, 0)), False)
sketch13.addConstraint(Sketcher.Constraint("Coincident", 0, 2, 1, 1))
sketch13.addConstraint(Sketcher.Constraint("Coincident", 1, 2, 2, 1))
sketch13.addConstraint(Sketcher.Constraint("Coincident", 2, 2, 3, 1))
sketch13.addConstraint(Sketcher.Constraint("Coincident", 3, 2, 0, 1))
sketch13.addConstraint(Sketcher.Constraint("Horizontal", 0))
sketch13.addConstraint(Sketcher.Constraint("Horizontal", 2))
sketch13.addConstraint(Sketcher.Constraint("PointOnObject", 0, 2, -1))
sketch13.addConstraint(Sketcher.Constraint("Parallel", 1, 3))
sketch13.addConstraint(Sketcher.Constraint("DistanceX", 0, 1, 0, 2, Q("5.5 in")))
sketch13.addConstraint(Sketcher.Constraint("DistanceY", -1, 1, 1, 2, Q("8 in")))
sketch13.addConstraint(Sketcher.Constraint("Angle", 1, Q("66 deg")))
sketch13.addConstraint(Sketcher.Constraint("DistanceX", 0, 2, -1, 1, Q("73.986444 mm")))
pad5 = body5.newObject("PartDesign::Pad", "Pad004")
pad5.Profile = sketch13
pad5.Length = Q("0.75 in")
pad5.Reversed = True

sketch14 = body5.newObject("Sketcher::SketchObject", "Sketch013")
sketch14.AttachmentSupport = (doc.getObject("XZ_Plane004"), [""])
sketch14.MapMode = "FlatFace"
sketch14.AttachmentOffset = App.Placement(App.Vector(0, 0, -0.75 * 25.4), App.Rotation())
sketch14.addGeometry(Part.LineSegment(App.Vector(-27, 203, 0), App.Vector(-72, 203, 0)), False)
sketch14.addGeometry(Part.LineSegment(App.Vector(-72, 203, 0), App.Vector(-163, 0, 0)), False)
sketch14.addGeometry(Part.LineSegment(App.Vector(-163, 0, 0), App.Vector(-118, 0, 0)), False)
sketch14.addGeometry(Part.LineSegment(App.Vector(-118, 0, 0), App.Vector(-27, 203, 0)), False)
sketch14.addConstraint(Sketcher.Constraint("Coincident", 0, 2, 1, 1))
sketch14.addConstraint(Sketcher.Constraint("Coincident", 1, 2, 2, 1))
sketch14.addConstraint(Sketcher.Constraint("Coincident", 2, 2, 3, 1))
sketch14.addConstraint(Sketcher.Constraint("Coincident", 3, 2, 0, 1))
sketch14.addConstraint(Sketcher.Constraint("Horizontal", 0))
sketch14.addConstraint(Sketcher.Constraint("Horizontal", 2))
sketch14.addConstraint(Sketcher.Constraint("PointOnObject", 1, 2, -1))
sketch14.addConstraint(Sketcher.Constraint("Parallel", 1, 3))
sketch14.addConstraint(Sketcher.Constraint("DistanceY", -1, 1, 0, 2, Q("8 in")))
sketch14.addConstraint(Sketcher.Constraint("Angle", 1, Q("-114 deg")))
sketch14.addConstraint(Sketcher.Constraint("DistanceX", 0, 2, 0, 1, Q("45.181112 mm")))
sketch14.addConstraint(Sketcher.Constraint("DistanceX", 2, 2, -1, 1, Q("117.705331 mm")))
pocket9 = body5.newObject("PartDesign::Pocket", "Pocket008")
pocket9.Profile = sketch14
pocket9.Length = Q("0.11 in")
doc.recompute()

fillet13 = body5.newObject("PartDesign::Fillet", "Fillet012")
fillet13.Base = (pocket9, edges_at(pocket9, [(16.484, 28.575, 203.2)]))
fillet13.Radius = Q("0.125 in")
doc.recompute()

fillet14 = body5.newObject("PartDesign::Fillet", "Fillet013")
fillet14.Base = (fillet13, edges_at(fillet13, [(-123.216, 28.575, 203.2)]))
fillet14.Radius = Q("0.125 in")
doc.recompute()

fillet15 = body5.newObject("PartDesign::Fillet", "Fillet014")
fillet15.Base = (fillet14, edges_at(fillet14, [(-213.686, 28.575, 0)]))
fillet15.Radius = Q("0.125 in")
body6 = doc.addObject("PartDesign::Body", "Body005")

sketch15 = body6.newObject("Sketcher::SketchObject", "Sketch014")
sketch15.AttachmentSupport = (doc.getObject("XZ_Plane005"), [""])
sketch15.MapMode = "FlatFace"
sketch15.AttachmentOffset = App.Placement(App.Vector(0, 0, 2.25 * 25.4), App.Rotation())
sketch15.addGeometry(Part.LineSegment(App.Vector(-123, 203, 0), App.Vector(-214, 0, 0)), False)
sketch15.addGeometry(Part.LineSegment(App.Vector(-214, 0, 0), App.Vector(-74, 0, 0)), False)
sketch15.addGeometry(Part.LineSegment(App.Vector(-74, 0, 0), App.Vector(16, 203, 0)), False)
sketch15.addGeometry(Part.LineSegment(App.Vector(16, 203, 0), App.Vector(-123, 203, 0)), False)
sketch15.addConstraint(Sketcher.Constraint("Coincident", 0, 2, 1, 1))
sketch15.addConstraint(Sketcher.Constraint("Coincident", 1, 2, 2, 1))
sketch15.addConstraint(Sketcher.Constraint("Coincident", 2, 2, 3, 1))
sketch15.addConstraint(Sketcher.Constraint("Coincident", 3, 2, 0, 1))
sketch15.addConstraint(Sketcher.Constraint("Horizontal", 1))
sketch15.addConstraint(Sketcher.Constraint("Horizontal", 3))
sketch15.addConstraint(Sketcher.Constraint("PointOnObject", 0, 2, -1))
sketch15.addConstraint(Sketcher.Constraint("Parallel", 0, 2))
sketch15.addConstraint(Sketcher.Constraint("DistanceX", 1, 1, 1, 2, Q("5.5 in")))
sketch15.addConstraint(Sketcher.Constraint("DistanceY", -1, 1, 2, 2, Q("8 in")))
sketch15.addConstraint(Sketcher.Constraint("Angle", 0, Q("-114 deg")))
sketch15.addConstraint(Sketcher.Constraint("DistanceX", 0, 2, -1, 1, Q("213.686444 mm")))
pad6 = body6.newObject("PartDesign::Pad", "Pad005")
pad6.Profile = sketch15
pad6.Length = Q("0.75 in")

sketch16 = body6.newObject("Sketcher::SketchObject", "Sketch015")
sketch16.AttachmentSupport = (doc.getObject("XZ_Plane005"), [""])
sketch16.MapMode = "FlatFace"
sketch16.AttachmentOffset = App.Placement(App.Vector(0, 0, 2.25 * 25.4), App.Rotation())
sketch16.addGeometry(Part.LineSegment(App.Vector(-13, 203, 0), App.Vector(-72, 203, 0)), False)
sketch16.addGeometry(Part.LineSegment(App.Vector(-72, 203, 0), App.Vector(-163, 0, 0)), False)
sketch16.addGeometry(Part.LineSegment(App.Vector(-163, 0, 0), App.Vector(-104, 0, 0)), False)
sketch16.addGeometry(Part.LineSegment(App.Vector(-104, 0, 0), App.Vector(-13, 203, 0)), False)
sketch16.addConstraint(Sketcher.Constraint("Coincident", 0, 2, 1, 1))
sketch16.addConstraint(Sketcher.Constraint("Coincident", 1, 2, 2, 1))
sketch16.addConstraint(Sketcher.Constraint("Coincident", 2, 2, 3, 1))
sketch16.addConstraint(Sketcher.Constraint("Coincident", 3, 2, 0, 1))
sketch16.addConstraint(Sketcher.Constraint("Horizontal", 0))
sketch16.addConstraint(Sketcher.Constraint("Horizontal", 2))
sketch16.addConstraint(Sketcher.Constraint("PointOnObject", 1, 2, -1))
sketch16.addConstraint(Sketcher.Constraint("Parallel", 1, 3))
sketch16.addConstraint(Sketcher.Constraint("DistanceY", -1, 1, 0, 2, Q("8 in")))
sketch16.addConstraint(Sketcher.Constraint("Angle", 1, Q("-114 deg")))
sketch16.addConstraint(Sketcher.Constraint("DistanceX", 0, 2, 0, 1, Q("59.082993 mm")))
sketch16.addConstraint(Sketcher.Constraint("DistanceX", 2, 2, -1, 1, Q("103.803451 mm")))
pocket10 = body6.newObject("PartDesign::Pocket", "Pocket009")
pocket10.Profile = sketch16
pocket10.Length = Q("0.11 in")
pocket10.Reversed = True
doc.recompute()

fillet16 = body6.newObject("PartDesign::Fillet", "Fillet015")
fillet16.Base = (pocket10, edges_at(pocket10, [(16.484, -66.675, 203.2)]))
fillet16.Radius = Q("0.125 in")
doc.recompute()

fillet17 = body6.newObject("PartDesign::Fillet", "Fillet016")
fillet17.Base = (fillet16, edges_at(fillet16, [(-123.216, -66.675, 203.2)]))
fillet17.Radius = Q("0.125 in")
doc.recompute()

fillet18 = body6.newObject("PartDesign::Fillet", "Fillet017")
fillet18.Base = (fillet17, edges_at(fillet17, [(-213.686, -66.675, 0)]))
fillet18.Radius = Q("0.125 in")
body7 = doc.addObject("PartDesign::Body", "Body006")

sketch17 = body7.newObject("Sketcher::SketchObject", "Sketch016")
sketch17.AttachmentSupport = (doc.getObject("XZ_Plane006"), [""])
sketch17.MapMode = "FlatFace"
sketch17.AttachmentOffset = App.Placement(App.Vector(0, 0, 3 * 25.4), App.Rotation())
sketch17.addGeometry(Part.LineSegment(App.Vector(-40, 75, 0), App.Vector(-74, 0, 0)), False)
sketch17.addGeometry(Part.LineSegment(App.Vector(-74, 0, 0), App.Vector(-7, 0, 0)), False)
sketch17.addGeometry(Part.LineSegment(App.Vector(-7, 0, 0), App.Vector(-40, 75, 0)), False)
sketch17.addConstraint(Sketcher.Constraint("Coincident", 0, 2, 1, 1))
sketch17.addConstraint(Sketcher.Constraint("Coincident", 1, 2, 2, 1))
sketch17.addConstraint(Sketcher.Constraint("Coincident", 2, 2, 0, 1))
sketch17.addConstraint(Sketcher.Constraint("Horizontal", 1))
sketch17.addConstraint(Sketcher.Constraint("PointOnObject", 0, 2, -1))
sketch17.addConstraint(Sketcher.Constraint("Equal", 0, 2))
sketch17.addConstraint(Sketcher.Constraint("Angle", 0, Q("-114 deg")))
sketch17.addConstraint(Sketcher.Constraint("Distance", 0, Q("3.25 in")))
sketch17.addConstraint(Sketcher.Constraint("DistanceX", 0, 2, -1, 1, Q("73.986444 mm")))
pad7 = body7.newObject("PartDesign::Pad", "Pad006")
pad7.Profile = sketch17
pad7.Length = Q("0.75 in")
pad7.Reversed = True
doc.recompute()

fillet19 = body7.newObject("PartDesign::Fillet", "Fillet018")
fillet19.Base = (pad7, edges_at(pad7, [(-6.834, -66.675, 0)]))
fillet19.Radius = Q("0.125 in")
body8 = doc.addObject("PartDesign::Body", "Body007")

sketch18 = body8.newObject("Sketcher::SketchObject", "Sketch017")
sketch18.AttachmentSupport = (doc.getObject("XY_Plane007"), [""])
sketch18.MapMode = "FlatFace"
sketch18.addGeometry(Part.Circle(App.Vector(-204, -67, 0), App.Vector(0, 0, 1), 6), False)
sketch18.addConstraint(Sketcher.Constraint("Diameter", 0, Q("0.5 in")))
sketch18.addConstraint(Sketcher.Constraint("DistanceY", 0, 3, -1, 1, Q("2.625 in")))
sketch18.addConstraint(Sketcher.Constraint("DistanceX", 0, 3, -1, 1, Q("204.161444 mm")))
pad8 = body8.newObject("PartDesign::Pad", "Pad007")
pad8.Profile = sketch18
pad8.Length = Q("0.125 in")
pad8.Reversed = True
pad8.TaperAngle = -5

doc.recompute()
